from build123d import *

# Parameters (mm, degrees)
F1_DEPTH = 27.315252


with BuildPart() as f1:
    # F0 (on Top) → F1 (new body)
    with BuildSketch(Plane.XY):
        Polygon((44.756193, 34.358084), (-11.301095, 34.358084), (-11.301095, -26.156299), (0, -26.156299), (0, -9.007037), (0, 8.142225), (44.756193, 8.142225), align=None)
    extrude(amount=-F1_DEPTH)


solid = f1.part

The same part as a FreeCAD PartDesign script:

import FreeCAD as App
import Part
import Sketcher

V = App.Vector
Q = App.Units.Quantity

doc = App.newDocument("Part")
body = doc.addObject("PartDesign::Body", "Body")

sketch1 = body.newObject("Sketcher::SketchObject", "Sketch")
sketch1.AttachmentSupport = (doc.getObject("XY_Plane"), [""])
sketch1.MapMode = "FlatFace"
sketch1.addGeometry([
    Part.LineSegment(V(45, 34, 0), V(-11, 34, 0)),
    Part.LineSegment(V(-11, 34, 0), V(-11, -26, 0)),
    Part.LineSegment(V(-11, -26, 0), V(0, -26, 0)),
    Part.LineSegment(V(0, -26, 0), V(0, 8, 0)),
    Part.LineSegment(V(0, 8, 0), V(45, 8, 0)),
    Part.LineSegment(V(45, 8, 0), V(45, 34, 0)),
], False)
sketch1.addConstraint([
    Sketcher.Constraint("Coincident", 0, 2, 1, 1),
    Sketcher.Constraint("Coincident", 1, 2, 2, 1),
    Sketcher.Constraint("Coincident", 2, 2, 3, 1),
    Sketcher.Constraint("Coincident", 3, 2, 4, 1),
    Sketcher.Constraint("Coincident", 4, 2, 5, 1),
    Sketcher.Constraint("Coincident", 5, 2, 0, 1),
    Sketcher.Constraint("Horizontal", 0),
    Sketcher.Constraint("Vertical", 1),
    Sketcher.Constraint("Horizontal", 2),
    Sketcher.Constraint("Vertical", 3),
    Sketcher.Constraint("Horizontal", 4),
    Sketcher.Constraint("Vertical", 5),
    Sketcher.Constraint("PointOnObject", 2, 2, -2),
    Sketcher.Constraint("DistanceY", 5, 1, 5, 2, Q("26.215859 mm")),
    Sketcher.Constraint("DistanceY", 1, 2, -1, 1, Q("26.156299 mm")),
    Sketcher.Constraint("DistanceX", 0, 2, 0, 1, Q("56.057288 mm")),
    Sketcher.Constraint("DistanceX", 2, 1, 2, 2, Q("11.301095 mm")),
    Sketcher.Constraint("DistanceY", 1, 2, 1, 1, Q("60.514383 mm")),
])
pad1 = body.newObject("PartDesign::Pad", "Pad")
pad1.Profile = sketch1
pad1.Length = 27.315252
pad1.Reversed = True

doc.recompute()
